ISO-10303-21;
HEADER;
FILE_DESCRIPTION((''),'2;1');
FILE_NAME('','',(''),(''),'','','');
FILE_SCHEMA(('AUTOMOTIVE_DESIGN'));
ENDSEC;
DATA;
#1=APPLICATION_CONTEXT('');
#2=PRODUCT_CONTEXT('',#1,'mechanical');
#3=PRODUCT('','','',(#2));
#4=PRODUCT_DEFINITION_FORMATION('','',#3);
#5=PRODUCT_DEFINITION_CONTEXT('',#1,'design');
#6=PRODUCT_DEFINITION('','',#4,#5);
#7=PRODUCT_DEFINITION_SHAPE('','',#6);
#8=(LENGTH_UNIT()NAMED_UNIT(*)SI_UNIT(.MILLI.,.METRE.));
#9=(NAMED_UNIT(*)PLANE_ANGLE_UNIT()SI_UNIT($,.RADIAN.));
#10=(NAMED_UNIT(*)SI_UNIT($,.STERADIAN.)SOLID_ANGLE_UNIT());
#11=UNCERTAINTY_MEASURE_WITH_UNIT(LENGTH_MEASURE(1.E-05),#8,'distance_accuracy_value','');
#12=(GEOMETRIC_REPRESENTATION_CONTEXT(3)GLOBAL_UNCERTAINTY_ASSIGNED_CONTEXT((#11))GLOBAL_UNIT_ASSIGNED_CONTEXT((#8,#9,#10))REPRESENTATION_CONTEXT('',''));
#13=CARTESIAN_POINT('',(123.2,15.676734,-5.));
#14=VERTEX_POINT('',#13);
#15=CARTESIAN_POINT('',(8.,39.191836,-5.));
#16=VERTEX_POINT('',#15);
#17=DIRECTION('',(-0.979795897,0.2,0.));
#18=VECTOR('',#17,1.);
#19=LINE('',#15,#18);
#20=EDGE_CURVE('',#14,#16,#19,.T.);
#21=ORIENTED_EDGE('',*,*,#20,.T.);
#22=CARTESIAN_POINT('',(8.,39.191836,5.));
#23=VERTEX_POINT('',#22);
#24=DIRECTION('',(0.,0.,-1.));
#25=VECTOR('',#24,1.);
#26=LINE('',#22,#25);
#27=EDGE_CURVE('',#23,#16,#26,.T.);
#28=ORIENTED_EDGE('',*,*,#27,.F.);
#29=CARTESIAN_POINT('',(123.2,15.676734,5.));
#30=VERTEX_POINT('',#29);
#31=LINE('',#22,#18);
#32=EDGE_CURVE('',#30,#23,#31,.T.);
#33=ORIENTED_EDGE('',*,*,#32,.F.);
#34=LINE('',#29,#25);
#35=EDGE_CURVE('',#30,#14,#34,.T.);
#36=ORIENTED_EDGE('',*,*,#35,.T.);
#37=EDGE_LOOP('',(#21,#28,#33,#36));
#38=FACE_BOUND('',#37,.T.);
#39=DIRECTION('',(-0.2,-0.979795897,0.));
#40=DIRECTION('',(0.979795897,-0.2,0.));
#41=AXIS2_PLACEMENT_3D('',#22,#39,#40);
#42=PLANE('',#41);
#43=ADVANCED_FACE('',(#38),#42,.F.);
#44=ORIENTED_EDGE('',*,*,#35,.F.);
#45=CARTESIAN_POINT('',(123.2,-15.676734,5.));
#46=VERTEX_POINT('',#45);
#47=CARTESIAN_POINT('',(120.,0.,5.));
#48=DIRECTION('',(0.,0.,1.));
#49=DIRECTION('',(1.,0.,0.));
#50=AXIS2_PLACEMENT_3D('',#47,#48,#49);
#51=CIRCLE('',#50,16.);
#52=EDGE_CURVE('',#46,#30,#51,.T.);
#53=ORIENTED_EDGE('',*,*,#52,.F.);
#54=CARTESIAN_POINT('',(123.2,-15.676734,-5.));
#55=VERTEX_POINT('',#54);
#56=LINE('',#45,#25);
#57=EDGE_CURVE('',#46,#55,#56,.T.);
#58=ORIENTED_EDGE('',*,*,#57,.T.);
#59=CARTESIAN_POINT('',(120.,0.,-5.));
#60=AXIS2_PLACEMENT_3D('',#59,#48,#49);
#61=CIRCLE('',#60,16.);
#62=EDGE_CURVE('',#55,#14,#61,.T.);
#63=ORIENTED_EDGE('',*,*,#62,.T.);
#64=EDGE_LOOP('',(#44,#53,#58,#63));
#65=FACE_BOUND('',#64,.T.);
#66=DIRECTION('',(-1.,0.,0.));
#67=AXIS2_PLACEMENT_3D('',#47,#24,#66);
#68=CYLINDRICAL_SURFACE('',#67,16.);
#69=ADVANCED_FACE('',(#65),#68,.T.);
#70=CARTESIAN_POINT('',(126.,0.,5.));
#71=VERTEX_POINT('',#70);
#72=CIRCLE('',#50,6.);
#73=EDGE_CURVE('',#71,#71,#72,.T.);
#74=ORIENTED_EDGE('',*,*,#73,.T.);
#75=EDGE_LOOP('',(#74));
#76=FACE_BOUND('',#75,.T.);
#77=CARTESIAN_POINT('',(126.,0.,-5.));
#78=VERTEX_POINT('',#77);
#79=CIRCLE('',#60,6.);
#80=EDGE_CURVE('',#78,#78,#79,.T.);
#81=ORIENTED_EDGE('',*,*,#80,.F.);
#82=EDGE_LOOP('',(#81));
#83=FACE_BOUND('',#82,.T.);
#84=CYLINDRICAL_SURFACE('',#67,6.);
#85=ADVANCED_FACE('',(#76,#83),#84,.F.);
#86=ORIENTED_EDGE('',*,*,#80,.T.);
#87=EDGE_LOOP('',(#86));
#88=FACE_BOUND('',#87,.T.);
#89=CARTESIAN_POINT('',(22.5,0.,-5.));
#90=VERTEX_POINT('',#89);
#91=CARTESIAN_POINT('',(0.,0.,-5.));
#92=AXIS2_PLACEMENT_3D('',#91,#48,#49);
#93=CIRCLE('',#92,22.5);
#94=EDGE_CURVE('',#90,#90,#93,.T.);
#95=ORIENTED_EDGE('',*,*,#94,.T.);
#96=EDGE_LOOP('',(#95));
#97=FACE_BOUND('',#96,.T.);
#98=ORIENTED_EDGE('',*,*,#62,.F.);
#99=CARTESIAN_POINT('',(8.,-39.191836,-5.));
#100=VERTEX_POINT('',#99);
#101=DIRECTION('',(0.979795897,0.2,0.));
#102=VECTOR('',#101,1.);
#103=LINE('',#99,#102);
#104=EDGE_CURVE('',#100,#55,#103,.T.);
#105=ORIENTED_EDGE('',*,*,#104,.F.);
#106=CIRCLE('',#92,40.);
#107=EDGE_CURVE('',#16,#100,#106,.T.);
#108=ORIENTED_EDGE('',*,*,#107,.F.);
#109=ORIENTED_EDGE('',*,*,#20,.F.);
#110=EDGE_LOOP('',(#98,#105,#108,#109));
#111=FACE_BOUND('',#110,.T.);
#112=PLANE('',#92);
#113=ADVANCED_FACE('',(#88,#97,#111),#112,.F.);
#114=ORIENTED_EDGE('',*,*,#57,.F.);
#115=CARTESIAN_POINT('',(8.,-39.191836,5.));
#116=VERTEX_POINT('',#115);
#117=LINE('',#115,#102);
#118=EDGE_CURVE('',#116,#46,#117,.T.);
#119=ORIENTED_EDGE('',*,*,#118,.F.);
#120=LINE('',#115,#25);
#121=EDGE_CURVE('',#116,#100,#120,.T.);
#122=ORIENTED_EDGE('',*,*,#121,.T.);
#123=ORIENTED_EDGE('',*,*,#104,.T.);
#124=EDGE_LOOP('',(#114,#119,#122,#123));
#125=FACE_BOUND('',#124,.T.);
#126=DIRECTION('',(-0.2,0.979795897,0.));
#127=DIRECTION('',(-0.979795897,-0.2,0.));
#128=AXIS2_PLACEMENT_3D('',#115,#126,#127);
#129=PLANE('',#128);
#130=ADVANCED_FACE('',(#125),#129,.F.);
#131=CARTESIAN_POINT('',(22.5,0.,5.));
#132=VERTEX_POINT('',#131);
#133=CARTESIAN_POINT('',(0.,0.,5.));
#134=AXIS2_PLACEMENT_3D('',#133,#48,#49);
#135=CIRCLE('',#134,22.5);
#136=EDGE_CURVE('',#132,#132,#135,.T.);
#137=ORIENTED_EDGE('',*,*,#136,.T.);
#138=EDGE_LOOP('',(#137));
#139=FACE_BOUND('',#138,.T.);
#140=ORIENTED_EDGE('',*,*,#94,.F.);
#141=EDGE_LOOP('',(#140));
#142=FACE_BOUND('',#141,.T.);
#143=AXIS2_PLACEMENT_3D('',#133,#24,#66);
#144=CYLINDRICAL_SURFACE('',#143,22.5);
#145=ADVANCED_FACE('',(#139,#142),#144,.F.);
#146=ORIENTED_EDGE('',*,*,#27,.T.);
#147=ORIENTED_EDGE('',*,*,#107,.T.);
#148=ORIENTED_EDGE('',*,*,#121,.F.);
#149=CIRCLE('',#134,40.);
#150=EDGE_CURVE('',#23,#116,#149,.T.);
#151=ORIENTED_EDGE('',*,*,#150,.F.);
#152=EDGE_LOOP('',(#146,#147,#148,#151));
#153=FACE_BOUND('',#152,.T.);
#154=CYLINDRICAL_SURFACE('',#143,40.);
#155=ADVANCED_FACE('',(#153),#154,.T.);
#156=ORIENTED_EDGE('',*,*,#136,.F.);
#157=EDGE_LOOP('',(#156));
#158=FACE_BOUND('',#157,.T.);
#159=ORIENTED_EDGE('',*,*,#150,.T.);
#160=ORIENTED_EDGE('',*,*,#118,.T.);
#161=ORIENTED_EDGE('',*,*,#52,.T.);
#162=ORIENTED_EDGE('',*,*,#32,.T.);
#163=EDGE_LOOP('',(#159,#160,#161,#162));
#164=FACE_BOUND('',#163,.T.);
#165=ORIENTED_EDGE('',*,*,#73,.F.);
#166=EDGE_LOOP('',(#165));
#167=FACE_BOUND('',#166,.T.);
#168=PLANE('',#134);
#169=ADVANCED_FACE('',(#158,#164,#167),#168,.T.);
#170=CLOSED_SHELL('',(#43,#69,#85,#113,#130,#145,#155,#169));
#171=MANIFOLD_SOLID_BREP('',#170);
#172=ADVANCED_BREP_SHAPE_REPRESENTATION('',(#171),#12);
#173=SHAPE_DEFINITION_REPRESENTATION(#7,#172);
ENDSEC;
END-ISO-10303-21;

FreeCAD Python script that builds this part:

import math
import FreeCAD as App
import Part
import Sketcher
from FreeCAD import Vector

doc = App.newDocument("Part")
body = doc.addObject("PartDesign::Body", "Body")

# Sketch on XY plane
sketch1 = body.newObject("Sketcher::SketchObject", "Sketch")
sketch1.AttachmentSupport = (doc.getObject("XY_Plane"), [""])
sketch1.MapMode = "FlatFace"
sketch1.addGeometry(Part.LineSegment(Vector(123, 16, 0), Vector(8, 39, 0)), False)
sketch1.addGeometry(Part.ArcOfCircle(Part.Circle(Vector(0, 0, 0), Vector(0, 0, 1), 40), math.radians(78), math.radians(282)), False)
sketch1.addGeometry(Part.LineSegment(Vector(8, -39, 0), Vector(123, -16, 0)), False)
sketch1.addGeometry(Part.ArcOfCircle(Part.Circle(Vector(120, 0, 0), Vector(0, 0, 1), 16), math.radians(-78), math.radians(78)), False)
sketch1.addGeometry(Part.Circle(Vector(120, 0, 0), Vector(0, 0, 1), 6), False)
sketch1.addGeometry(Part.Circle(Vector(0, 0, 0), Vector(0, 0, 1), 22), False)
sketch1.addConstraint(Sketcher.Constraint("Tangent", 0, 2, 1, 1))
sketch1.addConstraint(Sketcher.Constraint("Tangent", 1, 2, 2, 1))
sketch1.addConstraint(Sketcher.Constraint("Tangent", 2, 2, 3, 1))
sketch1.addConstraint(Sketcher.Constraint("Tangent", 3, 2, 0, 1))
sketch1.addConstraint(Sketcher.Constraint("Coincident", 1, 3, -1, 1))
sketch1.addConstraint(Sketcher.Constraint("Coincident", 5, 3, -1, 1))
sketch1.addConstraint(Sketcher.Constraint("Coincident", 4, 3, 3, 3))
sketch1.addConstraint(Sketcher.Constraint("PointOnObject", 3, 3, -1))
sketch1.addConstraint(Sketcher.Constraint("Diameter", 4, 12.0))
sketch1.addConstraint(Sketcher.Constraint("Diameter", 5, 45.0))
sketch1.addConstraint(Sketcher.Constraint("Radius", 1, 40.0))
sketch1.addConstraint(Sketcher.Constraint("Radius", 3, 16.0))
sketch1.addConstraint(Sketcher.Constraint("DistanceX", -1, 1, 3, 3, 120.0))
pad1 = body.newObject("PartDesign::Pad", "Pad")
pad1.Profile = sketch1
pad1.Length = 10
pad1.Midplane = True

doc.recompute()
